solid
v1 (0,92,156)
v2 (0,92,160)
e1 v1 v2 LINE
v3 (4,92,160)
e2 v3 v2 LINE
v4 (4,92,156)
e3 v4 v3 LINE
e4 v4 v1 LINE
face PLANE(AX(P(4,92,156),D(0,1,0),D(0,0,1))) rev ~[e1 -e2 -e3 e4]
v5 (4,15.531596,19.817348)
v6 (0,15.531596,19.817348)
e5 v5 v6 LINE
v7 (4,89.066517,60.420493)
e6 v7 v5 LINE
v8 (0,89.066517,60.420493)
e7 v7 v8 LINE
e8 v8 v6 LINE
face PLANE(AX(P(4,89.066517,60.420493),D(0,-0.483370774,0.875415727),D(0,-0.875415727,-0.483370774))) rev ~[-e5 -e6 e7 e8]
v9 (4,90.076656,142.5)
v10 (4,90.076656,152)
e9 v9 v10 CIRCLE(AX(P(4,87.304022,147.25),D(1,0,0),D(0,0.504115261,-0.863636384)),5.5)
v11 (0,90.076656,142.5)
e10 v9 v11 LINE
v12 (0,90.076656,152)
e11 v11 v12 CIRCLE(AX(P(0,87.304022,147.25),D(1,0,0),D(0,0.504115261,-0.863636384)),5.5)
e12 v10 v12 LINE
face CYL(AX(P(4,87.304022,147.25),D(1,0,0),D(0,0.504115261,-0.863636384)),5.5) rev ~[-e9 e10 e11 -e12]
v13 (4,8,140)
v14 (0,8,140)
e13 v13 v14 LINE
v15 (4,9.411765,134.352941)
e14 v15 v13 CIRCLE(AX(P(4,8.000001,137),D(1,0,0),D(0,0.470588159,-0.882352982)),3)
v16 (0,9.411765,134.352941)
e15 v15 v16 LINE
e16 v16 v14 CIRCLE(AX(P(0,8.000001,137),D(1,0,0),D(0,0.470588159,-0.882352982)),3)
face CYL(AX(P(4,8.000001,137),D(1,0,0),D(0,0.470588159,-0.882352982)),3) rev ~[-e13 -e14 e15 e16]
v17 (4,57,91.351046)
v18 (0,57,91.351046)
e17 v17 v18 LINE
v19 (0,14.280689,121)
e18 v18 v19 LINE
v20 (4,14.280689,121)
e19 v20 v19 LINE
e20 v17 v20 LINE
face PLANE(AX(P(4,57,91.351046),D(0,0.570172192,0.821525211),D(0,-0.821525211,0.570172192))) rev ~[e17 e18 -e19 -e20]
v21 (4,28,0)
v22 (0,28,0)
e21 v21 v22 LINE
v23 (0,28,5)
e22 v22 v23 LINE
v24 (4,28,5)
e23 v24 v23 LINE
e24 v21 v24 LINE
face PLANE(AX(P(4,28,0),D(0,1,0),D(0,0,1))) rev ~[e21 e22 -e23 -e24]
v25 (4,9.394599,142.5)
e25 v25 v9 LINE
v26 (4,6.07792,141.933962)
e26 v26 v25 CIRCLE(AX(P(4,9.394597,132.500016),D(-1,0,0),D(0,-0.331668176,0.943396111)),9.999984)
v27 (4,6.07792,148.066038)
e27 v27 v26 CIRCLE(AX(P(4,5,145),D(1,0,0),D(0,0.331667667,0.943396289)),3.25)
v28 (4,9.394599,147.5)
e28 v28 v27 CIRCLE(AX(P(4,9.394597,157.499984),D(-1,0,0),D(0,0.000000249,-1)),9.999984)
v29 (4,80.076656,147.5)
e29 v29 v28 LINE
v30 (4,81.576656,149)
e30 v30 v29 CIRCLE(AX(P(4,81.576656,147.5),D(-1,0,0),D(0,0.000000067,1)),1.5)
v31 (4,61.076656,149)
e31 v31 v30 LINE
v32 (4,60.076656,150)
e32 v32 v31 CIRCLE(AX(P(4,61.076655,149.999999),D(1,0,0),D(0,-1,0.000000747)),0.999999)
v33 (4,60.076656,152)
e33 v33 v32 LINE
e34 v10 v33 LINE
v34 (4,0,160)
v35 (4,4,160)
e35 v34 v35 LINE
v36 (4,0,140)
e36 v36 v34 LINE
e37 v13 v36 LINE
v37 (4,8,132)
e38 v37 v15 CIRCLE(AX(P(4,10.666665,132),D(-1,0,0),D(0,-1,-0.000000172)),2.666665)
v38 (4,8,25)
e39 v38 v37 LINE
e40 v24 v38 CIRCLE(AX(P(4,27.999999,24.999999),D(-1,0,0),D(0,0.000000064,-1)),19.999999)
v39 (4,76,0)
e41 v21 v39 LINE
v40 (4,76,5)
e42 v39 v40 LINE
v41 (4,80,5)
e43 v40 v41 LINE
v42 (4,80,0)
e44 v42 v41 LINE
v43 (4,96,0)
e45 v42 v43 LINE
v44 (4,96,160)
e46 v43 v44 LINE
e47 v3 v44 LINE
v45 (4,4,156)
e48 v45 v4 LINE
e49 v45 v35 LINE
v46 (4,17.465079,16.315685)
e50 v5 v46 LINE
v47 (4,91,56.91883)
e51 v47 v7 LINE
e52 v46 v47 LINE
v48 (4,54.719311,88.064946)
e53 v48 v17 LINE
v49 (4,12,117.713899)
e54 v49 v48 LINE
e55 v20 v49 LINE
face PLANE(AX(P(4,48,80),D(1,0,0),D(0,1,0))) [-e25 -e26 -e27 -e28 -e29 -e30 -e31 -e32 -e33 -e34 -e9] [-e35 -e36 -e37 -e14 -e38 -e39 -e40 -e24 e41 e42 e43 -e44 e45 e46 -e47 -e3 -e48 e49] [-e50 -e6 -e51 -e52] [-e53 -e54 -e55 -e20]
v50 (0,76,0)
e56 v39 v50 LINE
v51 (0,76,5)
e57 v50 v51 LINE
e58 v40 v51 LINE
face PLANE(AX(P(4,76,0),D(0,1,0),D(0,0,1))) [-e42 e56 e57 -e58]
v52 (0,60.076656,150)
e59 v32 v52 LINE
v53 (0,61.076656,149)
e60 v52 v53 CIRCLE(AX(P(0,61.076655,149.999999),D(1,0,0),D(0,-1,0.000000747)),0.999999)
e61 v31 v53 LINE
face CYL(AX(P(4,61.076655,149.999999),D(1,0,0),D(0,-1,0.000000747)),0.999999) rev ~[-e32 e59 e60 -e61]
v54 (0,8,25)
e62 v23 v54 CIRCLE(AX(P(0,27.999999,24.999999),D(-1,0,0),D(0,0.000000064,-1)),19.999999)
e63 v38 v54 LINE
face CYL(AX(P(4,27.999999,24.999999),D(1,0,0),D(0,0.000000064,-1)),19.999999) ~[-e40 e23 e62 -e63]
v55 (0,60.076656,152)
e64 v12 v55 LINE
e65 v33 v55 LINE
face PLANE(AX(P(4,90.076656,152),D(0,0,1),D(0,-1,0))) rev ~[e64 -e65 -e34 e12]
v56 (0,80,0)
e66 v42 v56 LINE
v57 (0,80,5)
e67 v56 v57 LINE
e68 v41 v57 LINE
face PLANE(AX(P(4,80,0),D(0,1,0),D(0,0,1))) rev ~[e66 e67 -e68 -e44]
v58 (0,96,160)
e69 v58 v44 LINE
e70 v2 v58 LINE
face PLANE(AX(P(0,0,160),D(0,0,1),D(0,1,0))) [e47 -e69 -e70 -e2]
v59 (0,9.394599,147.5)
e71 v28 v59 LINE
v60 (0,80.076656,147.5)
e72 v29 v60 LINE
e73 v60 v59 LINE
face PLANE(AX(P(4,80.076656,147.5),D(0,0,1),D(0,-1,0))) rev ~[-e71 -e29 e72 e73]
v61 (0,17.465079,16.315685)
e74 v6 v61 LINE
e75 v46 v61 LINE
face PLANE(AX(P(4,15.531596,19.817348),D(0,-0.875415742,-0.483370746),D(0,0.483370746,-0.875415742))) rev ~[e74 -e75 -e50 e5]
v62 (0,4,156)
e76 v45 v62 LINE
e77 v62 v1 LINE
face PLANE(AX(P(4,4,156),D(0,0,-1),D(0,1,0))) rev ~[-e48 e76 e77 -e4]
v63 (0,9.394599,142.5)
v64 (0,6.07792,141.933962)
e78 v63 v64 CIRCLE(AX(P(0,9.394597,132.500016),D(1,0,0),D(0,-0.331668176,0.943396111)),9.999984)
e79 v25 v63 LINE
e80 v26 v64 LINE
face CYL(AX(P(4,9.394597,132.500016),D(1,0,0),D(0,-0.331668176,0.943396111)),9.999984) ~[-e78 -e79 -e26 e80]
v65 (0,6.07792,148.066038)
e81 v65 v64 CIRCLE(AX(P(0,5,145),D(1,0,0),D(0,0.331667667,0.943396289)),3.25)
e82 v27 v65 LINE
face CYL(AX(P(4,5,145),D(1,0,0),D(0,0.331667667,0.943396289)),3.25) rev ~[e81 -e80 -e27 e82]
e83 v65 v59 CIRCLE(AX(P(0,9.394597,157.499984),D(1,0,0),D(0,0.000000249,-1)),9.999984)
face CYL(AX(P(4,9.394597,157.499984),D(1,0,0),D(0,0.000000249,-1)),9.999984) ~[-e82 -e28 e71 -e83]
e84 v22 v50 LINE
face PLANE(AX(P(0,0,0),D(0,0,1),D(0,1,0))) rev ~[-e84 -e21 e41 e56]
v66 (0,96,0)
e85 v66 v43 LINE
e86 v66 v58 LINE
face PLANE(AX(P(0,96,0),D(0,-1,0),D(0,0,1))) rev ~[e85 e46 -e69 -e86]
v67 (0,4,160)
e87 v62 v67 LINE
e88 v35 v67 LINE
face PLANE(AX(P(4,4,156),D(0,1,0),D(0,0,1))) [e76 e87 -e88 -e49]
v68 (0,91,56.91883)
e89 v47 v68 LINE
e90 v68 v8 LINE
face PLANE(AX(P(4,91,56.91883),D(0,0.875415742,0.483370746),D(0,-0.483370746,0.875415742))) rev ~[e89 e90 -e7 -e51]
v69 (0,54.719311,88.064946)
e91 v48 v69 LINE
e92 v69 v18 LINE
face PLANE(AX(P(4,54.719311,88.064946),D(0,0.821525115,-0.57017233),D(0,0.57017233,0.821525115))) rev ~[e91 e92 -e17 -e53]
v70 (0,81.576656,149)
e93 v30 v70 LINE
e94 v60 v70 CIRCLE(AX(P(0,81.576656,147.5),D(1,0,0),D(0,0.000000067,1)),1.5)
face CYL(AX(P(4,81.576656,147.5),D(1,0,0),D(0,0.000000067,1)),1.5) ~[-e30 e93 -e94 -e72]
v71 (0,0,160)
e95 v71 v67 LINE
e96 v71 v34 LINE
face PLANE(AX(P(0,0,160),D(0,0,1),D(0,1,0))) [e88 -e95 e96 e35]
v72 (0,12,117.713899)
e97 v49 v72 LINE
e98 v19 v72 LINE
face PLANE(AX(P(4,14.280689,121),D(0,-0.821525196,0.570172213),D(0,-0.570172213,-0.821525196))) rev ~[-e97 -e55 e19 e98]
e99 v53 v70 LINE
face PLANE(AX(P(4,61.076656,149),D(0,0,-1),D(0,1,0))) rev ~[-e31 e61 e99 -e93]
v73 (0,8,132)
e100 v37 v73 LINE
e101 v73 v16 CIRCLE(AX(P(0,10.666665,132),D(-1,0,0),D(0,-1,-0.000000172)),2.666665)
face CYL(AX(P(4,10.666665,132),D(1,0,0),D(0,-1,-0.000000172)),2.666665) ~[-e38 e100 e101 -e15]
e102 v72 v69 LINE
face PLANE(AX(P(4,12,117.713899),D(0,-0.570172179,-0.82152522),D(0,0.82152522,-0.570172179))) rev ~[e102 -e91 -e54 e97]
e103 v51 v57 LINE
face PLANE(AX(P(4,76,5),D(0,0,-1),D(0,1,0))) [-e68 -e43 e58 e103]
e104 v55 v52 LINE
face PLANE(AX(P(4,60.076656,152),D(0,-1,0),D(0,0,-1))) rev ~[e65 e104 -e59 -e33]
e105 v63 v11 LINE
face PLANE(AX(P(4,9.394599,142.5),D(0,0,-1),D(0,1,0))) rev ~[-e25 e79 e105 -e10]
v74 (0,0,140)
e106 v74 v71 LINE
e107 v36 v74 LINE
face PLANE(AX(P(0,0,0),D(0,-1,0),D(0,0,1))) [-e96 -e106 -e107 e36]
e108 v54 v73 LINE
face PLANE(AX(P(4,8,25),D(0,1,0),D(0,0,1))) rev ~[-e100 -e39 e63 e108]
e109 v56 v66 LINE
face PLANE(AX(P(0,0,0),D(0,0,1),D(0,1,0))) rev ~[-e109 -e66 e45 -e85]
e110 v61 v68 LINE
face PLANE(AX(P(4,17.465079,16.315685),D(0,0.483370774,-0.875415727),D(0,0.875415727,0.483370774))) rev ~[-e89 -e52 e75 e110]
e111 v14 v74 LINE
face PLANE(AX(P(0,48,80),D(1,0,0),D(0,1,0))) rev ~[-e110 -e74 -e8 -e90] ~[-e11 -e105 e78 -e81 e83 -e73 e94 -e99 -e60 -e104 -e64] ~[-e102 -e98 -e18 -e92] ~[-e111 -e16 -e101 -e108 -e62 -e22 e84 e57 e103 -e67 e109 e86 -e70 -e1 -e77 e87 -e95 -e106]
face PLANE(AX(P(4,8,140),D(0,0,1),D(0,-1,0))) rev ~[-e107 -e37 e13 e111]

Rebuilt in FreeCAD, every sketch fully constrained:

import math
import FreeCAD as App
import Part
import Sketcher
from FreeCAD import Vector
Q = App.Units.Quantity


def add_polygon(sketch, points):
    """Adds a closed chain of lines whose ends are joined by coincident constraints."""
    first, n = sketch.GeometryCount, len(points)
    for a, b in zip(points, points[1:] + points[:1]):
        sketch.addGeometry(Part.LineSegment(App.Vector(*a, 0), App.Vector(*b, 0)), False)
    for i in range(n):
        sketch.addConstraint(Sketcher.Constraint("Coincident", first + i, 2, first + (i + 1) % n, 1))

doc = App.newDocument("Part")
body = doc.addObject("PartDesign::Body", "Body")

# Sketch on YZ plane
sketch1 = body.newObject("Sketcher::SketchObject", "Sketch")
sketch1.AttachmentSupport = (doc.getObject("YZ_Plane"), [""])
sketch1.MapMode = "FlatFace"
add_polygon(sketch1, [(0, 160), (0, 0), (96, 0), (96, 160)])  # lines 0-3
sketch1.addConstraint(Sketcher.Constraint("Vertical", 0))
sketch1.addConstraint(Sketcher.Constraint("Horizontal", 1))
sketch1.addConstraint(Sketcher.Constraint("Vertical", 2))
sketch1.addConstraint(Sketcher.Constraint("Horizontal", 3))
sketch1.addConstraint(Sketcher.Constraint("Coincident", 0, 2, -1, 1))
sketch1.addConstraint(Sketcher.Constraint("DistanceX", 1, 1, 1, 2, Q("96 mm")))
sketch1.addConstraint(Sketcher.Constraint("DistanceY", 0, 2, 0, 1, Q("160 mm")))
pad1 = body.newObject("PartDesign::Pad", "Pad")
pad1.Profile = sketch1
pad1.Length = 4

# Sketch on YZ plane
sketch2 = body.newObject("Sketcher::SketchObject", "Sketch001")
sketch2.AttachmentSupport = (doc.getObject("YZ_Plane"), [""])
sketch2.MapMode = "FlatFace"
sketch2.AttachmentOffset = App.Placement(Vector(0, 0, 4), App.Rotation())
add_polygon(sketch2, [(76, 5), (76, 0), (80, 0), (80, 5)])  # lines 0-3
add_polygon(sketch2, [(4, 160), (4, 156), (92, 156), (92, 160)])  # lines 4-7
sketch2.addConstraint(Sketcher.Constraint("Vertical", 0))
sketch2.addConstraint(Sketcher.Constraint("Horizontal", 1))
sketch2.addConstraint(Sketcher.Constraint("Vertical", 2))
sketch2.addConstraint(Sketcher.Constraint("Horizontal", 3))
sketch2.addConstraint(Sketcher.Constraint("Vertical", 4))
sketch2.addConstraint(Sketcher.Constraint("Horizontal", 5))
sketch2.addConstraint(Sketcher.Constraint("Vertical", 6))
sketch2.addConstraint(Sketcher.Constraint("Horizontal", 7))
sketch2.addConstraint(Sketcher.Constraint("PointOnObject", 0, 2, -1))
sketch2.addConstraint(Sketcher.Constraint("Equal", 3, 4))
sketch2.addConstraint(Sketcher.Constraint("DistanceX", 1, 1, 1, 2, Q("4 mm")))
sketch2.addConstraint(Sketcher.Constraint("DistanceX", 5, 1, 5, 2, Q("88 mm")))
sketch2.addConstraint(Sketcher.Constraint("DistanceY", 0, 2, 0, 1, Q("5 mm")))
sketch2.addConstraint(Sketcher.Constraint("DistanceX", -1, 1, 0, 2, Q("76 mm")))
sketch2.addConstraint(Sketcher.Constraint("DistanceX", -1, 1, 4, 2, Q("4 mm")))
sketch2.addConstraint(Sketcher.Constraint("DistanceY", -1, 1, 4, 2, Q("156 mm")))
pocket1 = body.newObject("PartDesign::Pocket", "Pocket")
pocket1.Profile = sketch2
pocket1.Type = "ThroughAll"

# Sketch on YZ plane
sketch3 = body.newObject("Sketcher::SketchObject", "Sketch002")
sketch3.AttachmentSupport = (doc.getObject("YZ_Plane"), [""])
sketch3.MapMode = "FlatFace"
sketch3.AttachmentOffset = App.Placement(Vector(0, 0, 4), App.Rotation())
add_polygon(sketch3, [(54.7, 88.1), (57, 91.4), (14.3, 121), (12, 117.7)])  # lines 0-3
add_polygon(sketch3, [(89.1, 60.4), (15.5, 19.8), (17.5, 16.3), (91, 56.9)])  # lines 4-7
sketch3.addConstraint(Sketcher.Constraint("Perpendicular", 0, 1))
sketch3.addConstraint(Sketcher.Constraint("Perpendicular", 1, 2))
sketch3.addConstraint(Sketcher.Constraint("Perpendicular", 2, 3))
sketch3.addConstraint(Sketcher.Constraint("Perpendicular", 4, 5))
sketch3.addConstraint(Sketcher.Constraint("Perpendicular", 5, 6))
sketch3.addConstraint(Sketcher.Constraint("Perpendicular", 6, 7))
sketch3.addConstraint(Sketcher.Constraint("Equal", 2, 5))
sketch3.addConstraint(Sketcher.Constraint("Distance", 0, Q("3.999999 mm")))
sketch3.addConstraint(Sketcher.Constraint("Distance", 1, Q("52 mm")))
sketch3.addConstraint(Sketcher.Constraint("Distance", 4, Q("84 mm")))
sketch3.addConstraint(Sketcher.Constraint("DistanceX", -1, 1, 0, 2, Q("57 mm")))
sketch3.addConstraint(Sketcher.Constraint("DistanceY", -1, 1, 1, 2, Q("121 mm")))
sketch3.addConstraint(Sketcher.Constraint("DistanceX", -1, 1, 2, 2, Q("12 mm")))
sketch3.addConstraint(Sketcher.Constraint("DistanceX", -1, 1, 6, 2, Q("91 mm")))
sketch3.addConstraint(Sketcher.Constraint("DistanceY", 4, 2, 3, 2, Q("68.247598 mm")))
sketch3.addConstraint(Sketcher.Constraint("DistanceX", -1, 1, 5, 2, Q("17.465079 mm")))
pocket2 = body.newObject("PartDesign::Pocket", "Pocket001")
pocket2.Profile = sketch3
pocket2.Type = "ThroughAll"

# Sketch on YZ plane
sketch4 = body.newObject("Sketcher::SketchObject", "Sketch003")
sketch4.AttachmentSupport = (doc.getObject("YZ_Plane"), [""])
sketch4.MapMode = "FlatFace"
sketch4.AttachmentOffset = App.Placement(Vector(0, 0, 4), App.Rotation())
sketch4.addGeometry(Part.LineSegment(Vector(0, 140, 0), Vector(0, 0, 0)), False)
sketch4.addGeometry(Part.LineSegment(Vector(0, 0, 0), Vector(28, 0, 0)), False)
sketch4.addGeometry(Part.LineSegment(Vector(28, 0, 0), Vector(28, 5, 0)), False)
sketch4.addGeometry(Part.ArcOfCircle(Part.Circle(Vector(28, 25, 0), Vector(0, 0, 1), 20), math.radians(180), math.radians(270)), False)
sketch4.addGeometry(Part.LineSegment(Vector(8, 25, 0), Vector(8, 140, 0)), False)
sketch4.addGeometry(Part.LineSegment(Vector(8, 140, 0), Vector(0, 140, 0)), False)
sketch4.addConstraint(Sketcher.Constraint("Coincident", 0, 2, 1, 1))
sketch4.addConstraint(Sketcher.Constraint("Coincident", 1, 2, 2, 1))
sketch4.addConstraint(Sketcher.Constraint("Coincident", 2, 2, 3, 2))
sketch4.addConstraint(Sketcher.Constraint("Tangent", 3, 1, 4, 1))
sketch4.addConstraint(Sketcher.Constraint("Coincident", 4, 2, 5, 1))
sketch4.addConstraint(Sketcher.Constraint("Coincident", 5, 2, 0, 1))
sketch4.addConstraint(Sketcher.Constraint("Vertical", 0))
sketch4.addConstraint(Sketcher.Constraint("Horizontal", 1))
sketch4.addConstraint(Sketcher.Constraint("Vertical", 2))
sketch4.addConstraint(Sketcher.Constraint("Vertical", 4))
sketch4.addConstraint(Sketcher.Constraint("Horizontal", 5))
sketch4.addConstraint(Sketcher.Constraint("Coincident", 0, 2, -1, 1))
sketch4.addConstraint(Sketcher.Constraint("Vertical", 3, 3, 1, 2))
sketch4.addConstraint(Sketcher.Constraint("Radius", 3, Q("19.999999 mm")))
sketch4.addConstraint(Sketcher.Constraint("DistanceX", 1, 1, 1, 2, Q("28 mm")))
sketch4.addConstraint(Sketcher.Constraint("DistanceY", 0, 2, 0, 1, Q("140 mm")))
sketch4.addConstraint(Sketcher.Constraint("DistanceY", 2, 1, 2, 2, Q("5 mm")))
pocket3 = body.newObject("PartDesign::Pocket", "Pocket002")
pocket3.Profile = sketch4
pocket3.Type = "ThroughAll"

# Sketch on YZ plane
sketch5 = body.newObject("Sketcher::SketchObject", "Sketch004")
sketch5.AttachmentSupport = (doc.getObject("YZ_Plane"), [""])
sketch5.MapMode = "FlatFace"
sketch5.AttachmentOffset = App.Placement(Vector(0, 0, 4), App.Rotation())
sketch5.addGeometry(Part.ArcOfCircle(Part.Circle(Vector(9.4, 132.5, 0), Vector(0, 0, 1), 10), math.radians(90), math.radians(109.37)), False)
sketch5.addGeometry(Part.LineSegment(Vector(9.4, 142.5, 0), Vector(90.1, 142.5, 0)), False)
sketch5.addGeometry(Part.ArcOfCircle(Part.Circle(Vector(87.3, 147.2, 0), Vector(0, 0, 1), 5.5), math.radians(-60), math.radians(60)), False)
sketch5.addGeometry(Part.LineSegment(Vector(90.1, 152, 0), Vector(60.1, 152, 0)), False)
sketch5.addGeometry(Part.LineSegment(Vector(60.1, 152, 0), Vector(60.1, 150, 0)), False)
sketch5.addGeometry(Part.ArcOfCircle(Part.Circle(Vector(61.1, 150, 0), Vector(0, 0, 1), 1), math.radians(180), math.radians(270)), False)
sketch5.addGeometry(Part.LineSegment(Vector(61.1, 149, 0), Vector(81.6, 149, 0)), False)
sketch5.addGeometry(Part.ArcOfCircle(Part.Circle(Vector(81.6, 147.5, 0), Vector(0, 0, 1), 1.5), math.radians(-180), math.radians(90)), False)
sketch5.addGeometry(Part.LineSegment(Vector(80.1, 147.5, 0), Vector(9.4, 147.5, 0)), False)
sketch5.addGeometry(Part.ArcOfCircle(Part.Circle(Vector(9.4, 157.5, 0), Vector(0, 0, 1), 10), math.radians(-109.37), math.radians(-90)), False)
sketch5.addGeometry(Part.ArcOfCircle(Part.Circle(Vector(5, 145, 0), Vector(0, 0, 1), 3.3), math.radians(71), math.radians(289)), False)
sketch5.addConstraint(Sketcher.Constraint("Tangent", 0, 1, 1, 1))
sketch5.addConstraint(Sketcher.Constraint("Coincident", 1, 2, 2, 1))
sketch5.addConstraint(Sketcher.Constraint("Coincident", 2, 2, 3, 1))
sketch5.addConstraint(Sketcher.Constraint("Coincident", 3, 2, 4, 1))
sketch5.addConstraint(Sketcher.Constraint("Tangent", 4, 2, 5, 1))
sketch5.addConstraint(Sketcher.Constraint("Tangent", 5, 2, 6, 1))
sketch5.addConstraint(Sketcher.Constraint("Tangent", 6, 2, 7, 2))
sketch5.addConstraint(Sketcher.Constraint("Coincident", 7, 1, 8, 1))
sketch5.addConstraint(Sketcher.Constraint("Tangent", 8, 2, 9, 2))
sketch5.addConstraint(Sketcher.Constraint("Tangent", 9, 1, 10, 1))
sketch5.addConstraint(Sketcher.Constraint("Tangent", 10, 2, 0, 2))
sketch5.addConstraint(Sketcher.Constraint("Horizontal", 1))
sketch5.addConstraint(Sketcher.Constraint("Horizontal", 3))
sketch5.addConstraint(Sketcher.Constraint("Vertical", 4))
sketch5.addConstraint(Sketcher.Constraint("Horizontal", 6))
sketch5.addConstraint(Sketcher.Constraint("Horizontal", 8))
sketch5.addConstraint(Sketcher.Constraint("Equal", 0, 9))
sketch5.addConstraint(Sketcher.Constraint("Vertical", 0, 3, 9, 3))
sketch5.addConstraint(Sketcher.Constraint("Vertical", 1, 2, 2, 2))
sketch5.addConstraint(Sketcher.Constraint("Radius", 5, Q("0.999999 mm")))
sketch5.addConstraint(Sketcher.Constraint("Radius", 2, Q("5.5 mm")))
sketch5.addConstraint(Sketcher.Constraint("Radius", 7, Q("1.5 mm")))
sketch5.addConstraint(Sketcher.Constraint("DistanceX", 3, 2, 3, 1, Q("30 mm")))
sketch5.addConstraint(Sketcher.Constraint("DistanceY", 4, 2, 4, 1, Q("2 mm")))
sketch5.addConstraint(Sketcher.Constraint("Radius", 10, Q("3.25 mm")))
sketch5.addConstraint(Sketcher.Constraint("DistanceX", 6, 1, 6, 2, Q("20.5 mm")))
sketch5.addConstraint(Sketcher.Constraint("DistanceY", -1, 1, 5, 3, Q("149.999999 mm")))
sketch5.addConstraint(Sketcher.Constraint("DistanceX", -1, 1, 10, 3, Q("5 mm")))
sketch5.addConstraint(Sketcher.Constraint("DistanceY", -1, 1, 10, 3, Q("145 mm")))
sketch5.addConstraint(Sketcher.Constraint("DistanceY", 0, 1, 7, 3, Q("5 mm")))
sketch5.addConstraint(Sketcher.Constraint("Radius", 0, Q("9.999984 mm")))
sketch5.addConstraint(Sketcher.Constraint("DistanceX", 1, 1, 1, 2, Q("80.682057 mm")))
pocket4 = body.newObject("PartDesign::Pocket", "Pocket003")
pocket4.Profile = sketch5
pocket4.Type = "ThroughAll"

# Sketch on YZ plane
sketch6 = body.newObject("Sketcher::SketchObject", "Sketch005")
sketch6.AttachmentSupport = (doc.getObject("YZ_Plane"), [""])
sketch6.MapMode = "FlatFace"
sketch6.AttachmentOffset = App.Placement(Vector(0, 0, 4), App.Rotation())
sketch6.addGeometry(Part.ArcOfCircle(Part.Circle(Vector(8, 137, 0), Vector(0, 0, 1), 3), math.radians(-62), math.radians(90)), False)
sketch6.addGeometry(Part.LineSegment(Vector(8, 140, 0), Vector(8, 132, 0)), False)
sketch6.addGeometry(Part.ArcOfCircle(Part.Circle(Vector(10.7, 132, 0), Vector(0, 0, 1), 2.7), math.radians(118), math.radians(180)), False)
sketch6.addConstraint(Sketcher.Constraint("Coincident", 0, 2, 1, 1))
sketch6.addConstraint(Sketcher.Constraint("Tangent", 1, 2, 2, 2))
sketch6.addConstraint(Sketcher.Constraint("Tangent", 2, 1, 0, 1))
sketch6.addConstraint(Sketcher.Constraint("Vertical", 1))
sketch6.addConstraint(Sketcher.Constraint("Radius", 0, Q("3 mm")))
sketch6.addConstraint(Sketcher.Constraint("DistanceY", 1, 2, 1, 1, Q("8 mm")))
sketch6.addConstraint(Sketcher.Constraint("DistanceX", -1, 1, 0, 3, Q("8.000001 mm")))
sketch6.addConstraint(Sketcher.Constraint("DistanceY", -1, 1, 0, 3, Q("137 mm")))
sketch6.addConstraint(Sketcher.Constraint("DistanceX", -1, 1, 0, 2, Q("8 mm")))
pocket5 = body.newObject("PartDesign::Pocket", "Pocket004")
pocket5.Profile = sketch6
pocket5.Type = "ThroughAll"

doc.recompute()
